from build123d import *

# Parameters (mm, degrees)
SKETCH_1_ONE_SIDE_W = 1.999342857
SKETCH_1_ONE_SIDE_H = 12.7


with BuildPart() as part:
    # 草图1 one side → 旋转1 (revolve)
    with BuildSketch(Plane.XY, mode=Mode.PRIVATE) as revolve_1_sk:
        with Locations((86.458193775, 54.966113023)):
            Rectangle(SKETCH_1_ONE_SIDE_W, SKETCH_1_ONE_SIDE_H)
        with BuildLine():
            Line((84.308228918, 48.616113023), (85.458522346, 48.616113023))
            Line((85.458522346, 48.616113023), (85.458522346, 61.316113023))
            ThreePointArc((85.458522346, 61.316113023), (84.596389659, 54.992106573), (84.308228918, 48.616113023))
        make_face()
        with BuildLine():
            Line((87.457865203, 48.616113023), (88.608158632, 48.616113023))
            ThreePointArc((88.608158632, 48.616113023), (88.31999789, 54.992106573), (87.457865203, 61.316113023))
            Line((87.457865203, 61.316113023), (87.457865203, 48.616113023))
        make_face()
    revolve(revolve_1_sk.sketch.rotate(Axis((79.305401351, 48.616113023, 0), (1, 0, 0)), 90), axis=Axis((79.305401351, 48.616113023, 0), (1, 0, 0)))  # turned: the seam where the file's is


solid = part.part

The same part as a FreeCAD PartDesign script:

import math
import FreeCAD as App
import Part
import Sketcher

V = App.Vector
Q = App.Units.Quantity

doc = App.newDocument("Part")
body = doc.addObject("PartDesign::Body", "Body")

# Sketch on XY plane
sketch1 = body.newObject("Sketcher::SketchObject", "Sketch")
sketch1.AttachmentSupport = (doc.getObject("XY_Plane"), [""])
sketch1.MapMode = "FlatFace"
sketch1.addGeometry(Part.LineSegment(V(87.5, 61.3, 0), V(85.5, 61.3, 0)), False)
sketch1.addGeometry(Part.ArcOfCircle(Part.Circle(V(155, 48.6, 0), V(0, 0, 1), 70.7), math.radians(169.65), math.radians(180)), False)
sketch1.addGeometry(Part.LineSegment(V(84.3, 48.6, 0), V(88.6, 48.6, 0)), False)
sketch1.addGeometry(Part.ArcOfCircle(Part.Circle(V(17.9, 48.6, 0), V(0, 0, 1), 70.7), math.radians(0), math.radians(10.35)), False)
sketch1.addGeometry(Part.LineSegment(V(17.9, 48.6, 0), V(155, 48.6, 0)), True)  # axis
sketch1.addConstraint(Sketcher.Constraint("Coincident", 0, 2, 1, 1))
sketch1.addConstraint(Sketcher.Constraint("Coincident", 1, 2, 2, 1))
sketch1.addConstraint(Sketcher.Constraint("Coincident", 2, 2, 3, 1))
sketch1.addConstraint(Sketcher.Constraint("Coincident", 3, 2, 0, 1))
sketch1.addConstraint(Sketcher.Constraint("Horizontal", 0))
sketch1.addConstraint(Sketcher.Constraint("Horizontal", 2))
sketch1.addConstraint(Sketcher.Constraint("Horizontal", 4))
sketch1.addConstraint(Sketcher.Constraint("Coincident", 4, 1, 3, 3))
sketch1.addConstraint(Sketcher.Constraint("Coincident", 4, 2, 1, 3))
sketch1.addConstraint(Sketcher.Constraint("Equal", 1, 3))
sketch1.addConstraint(Sketcher.Constraint("Horizontal", 3, 3, 1, 2))
sketch1.addConstraint(Sketcher.Constraint("DistanceY", 3, 3, 0, 2, Q("12.7 mm")))
sketch1.addConstraint(Sketcher.Constraint("Radius", 1, Q("70.683345 mm")))
sketch1.addConstraint(Sketcher.Constraint("DistanceX", 2, 1, 2, 2, Q("4.29993 mm")))
sketch1.addConstraint(Sketcher.Constraint("DistanceX", -1, 1, 1, 2, Q("84.308229 mm")))
sketch1.addConstraint(Sketcher.Constraint("DistanceY", -1, 1, 1, 3, Q("48.616113 mm")))
revolution = body.newObject("PartDesign::Revolution", "Revolution")
revolution.Profile = sketch1
revolution.ReferenceAxis = (sketch1, ["Axis0"])
revolution.Angle = 360

doc.recompute()
